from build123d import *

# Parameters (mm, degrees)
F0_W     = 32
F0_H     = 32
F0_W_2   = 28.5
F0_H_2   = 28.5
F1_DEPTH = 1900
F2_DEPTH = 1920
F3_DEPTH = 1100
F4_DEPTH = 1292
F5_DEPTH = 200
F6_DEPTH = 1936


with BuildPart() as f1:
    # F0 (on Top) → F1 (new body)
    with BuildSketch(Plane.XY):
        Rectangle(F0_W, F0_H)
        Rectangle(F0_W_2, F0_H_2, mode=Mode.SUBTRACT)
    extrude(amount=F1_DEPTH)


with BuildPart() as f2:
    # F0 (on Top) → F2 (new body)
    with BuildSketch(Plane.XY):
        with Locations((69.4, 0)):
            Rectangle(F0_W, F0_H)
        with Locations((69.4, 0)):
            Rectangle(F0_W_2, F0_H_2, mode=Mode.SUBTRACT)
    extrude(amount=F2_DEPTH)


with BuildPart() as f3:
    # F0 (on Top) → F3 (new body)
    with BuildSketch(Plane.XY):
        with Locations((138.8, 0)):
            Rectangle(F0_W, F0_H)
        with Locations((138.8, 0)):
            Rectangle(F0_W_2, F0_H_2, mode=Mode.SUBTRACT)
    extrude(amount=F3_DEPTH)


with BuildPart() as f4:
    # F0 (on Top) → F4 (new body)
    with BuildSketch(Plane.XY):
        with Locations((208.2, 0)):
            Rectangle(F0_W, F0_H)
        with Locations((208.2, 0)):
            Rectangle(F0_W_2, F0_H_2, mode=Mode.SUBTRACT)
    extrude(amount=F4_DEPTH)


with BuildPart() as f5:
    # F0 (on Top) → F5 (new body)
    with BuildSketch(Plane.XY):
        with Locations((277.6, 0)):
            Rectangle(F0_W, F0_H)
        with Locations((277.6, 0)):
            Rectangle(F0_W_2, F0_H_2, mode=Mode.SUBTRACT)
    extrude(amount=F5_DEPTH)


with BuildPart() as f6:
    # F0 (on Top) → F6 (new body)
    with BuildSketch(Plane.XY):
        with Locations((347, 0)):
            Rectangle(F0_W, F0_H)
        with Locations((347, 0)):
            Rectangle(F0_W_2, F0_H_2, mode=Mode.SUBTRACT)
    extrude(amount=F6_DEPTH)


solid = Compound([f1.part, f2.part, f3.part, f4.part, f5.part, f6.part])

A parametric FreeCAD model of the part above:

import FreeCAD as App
import Part
import Sketcher

V = App.Vector

doc = App.newDocument("Part")
body = doc.addObject("PartDesign::Body", "Body")

# Sketch on XY plane
sketch1 = doc.addObject("Sketcher::SketchObject", "Sketch")
body.addObject(sketch1)
sketch1.AttachmentSupport = (doc.XY_Plane, [""])
sketch1.MapMode = "FlatFace"
sketch1.addGeometry(Part.LineSegment(V(-16, 16, 0), V(-16, -16, 0)), False)
sketch1.addGeometry(Part.LineSegment(V(-16, -16, 0), V(16, -16, 0)), False)
sketch1.addGeometry(Part.LineSegment(V(16, -16, 0), V(16, 16, 0)), False)
sketch1.addGeometry(Part.LineSegment(V(16, 16, 0), V(-16, 16, 0)), False)
sketch1.addGeometry(Part.LineSegment(V(14, -14, 0), V(-14, -14, 0)), False)
sketch1.addGeometry(Part.LineSegment(V(-14, -14, 0), V(-14, 14, 0)), False)
sketch1.addGeometry(Part.LineSegment(V(-14, 14, 0), V(14, 14, 0)), False)
sketch1.addGeometry(Part.LineSegment(V(14, 14, 0), V(14, -14, 0)), False)
sketch1.addConstraint(Sketcher.Constraint("Coincident", 0, 2, 1, 1))
sketch1.addConstraint(Sketcher.Constraint("Coincident", 1, 2, 2, 1))
sketch1.addConstraint(Sketcher.Constraint("Coincident", 2, 2, 3, 1))
sketch1.addConstraint(Sketcher.Constraint("Coincident", 3, 2, 0, 1))
sketch1.addConstraint(Sketcher.Constraint("Coincident", 4, 2, 5, 1))
sketch1.addConstraint(Sketcher.Constraint("Coincident", 5, 2, 6, 1))
sketch1.addConstraint(Sketcher.Constraint("Coincident", 6, 2, 7, 1))
sketch1.addConstraint(Sketcher.Constraint("Coincident", 7, 2, 4, 1))
sketch1.addConstraint(Sketcher.Constraint("Vertical", 0))
sketch1.addConstraint(Sketcher.Constraint("Horizontal", 1))
sketch1.addConstraint(Sketcher.Constraint("Vertical", 2))
sketch1.addConstraint(Sketcher.Constraint("Horizontal", 3))
sketch1.addConstraint(Sketcher.Constraint("Horizontal", 4))
sketch1.addConstraint(Sketcher.Constraint("Vertical", 5))
sketch1.addConstraint(Sketcher.Constraint("Horizontal", 6))
sketch1.addConstraint(Sketcher.Constraint("Vertical", 7))
sketch1.addConstraint(Sketcher.Constraint("Symmetric", 0, 2, 2, 2, -1, 1))
sketch1.addConstraint(Sketcher.Constraint("Symmetric", 4, 2, 6, 2, -1, 1))
sketch1.addConstraint(Sketcher.Constraint("Equal", 3, 0))
sketch1.addConstraint(Sketcher.Constraint("Equal", 6, 5))
sketch1.addConstraint(Sketcher.Constraint("DistanceX", 1, 1, 1, 2, 32.0))
sketch1.addConstraint(Sketcher.Constraint("DistanceX", 4, 2, 4, 1, 28.5))
pad1 = doc.addObject("PartDesign::Pad", "Pad")
body.addObject(pad1)
pad1.Profile = sketch1
pad1.Length = 1900
body2 = doc.addObject("PartDesign::Body", "Body001")

# Sketch on XY plane
sketch2 = doc.addObject("Sketcher::SketchObject", "Sketch001")
body2.addObject(sketch2)
sketch2.AttachmentSupport = (doc.getObject("XY_Plane001"), [""])
sketch2.MapMode = "FlatFace"
sketch2.addGeometry(Part.LineSegment(V(53, 16, 0), V(53, -16, 0)), False)
sketch2.addGeometry(Part.LineSegment(V(53, -16, 0), V(85, -16, 0)), False)
sketch2.addGeometry(Part.LineSegment(V(85, -16, 0), V(85, 16, 0)), False)
sketch2.addGeometry(Part.LineSegment(V(85, 16, 0), V(53, 16, 0)), False)
sketch2.addGeometry(Part.LineSegment(V(84, -14, 0), V(55, -14, 0)), False)
sketch2.addGeometry(Part.LineSegment(V(55, -14, 0), V(55, 14, 0)), False)
sketch2.addGeometry(Part.LineSegment(V(55, 14, 0), V(84, 14, 0)), False)
sketch2.addGeometry(Part.LineSegment(V(84, 14, 0), V(84, -14, 0)), False)
sketch2.addConstraint(Sketcher.Constraint("Coincident", 0, 2, 1, 1))
sketch2.addConstraint(Sketcher.Constraint("Coincident", 1, 2, 2, 1))
sketch2.addConstraint(Sketcher.Constraint("Coincident", 2, 2, 3, 1))
sketch2.addConstraint(Sketcher.Constraint("Coincident", 3, 2, 0, 1))
sketch2.addConstraint(Sketcher.Constraint("Coincident", 4, 2, 5, 1))
sketch2.addConstraint(Sketcher.Constraint("Coincident", 5, 2, 6, 1))
sketch2.addConstraint(Sketcher.Constraint("Coincident", 6, 2, 7, 1))
sketch2.addConstraint(Sketcher.Constraint("Coincident", 7, 2, 4, 1))
sketch2.addConstraint(Sketcher.Constraint("Vertical", 0))
sketch2.addConstraint(Sketcher.Constraint("Horizontal", 1))
sketch2.addConstraint(Sketcher.Constraint("Vertical", 2))
sketch2.addConstraint(Sketcher.Constraint("Horizontal", 3))
sketch2.addConstraint(Sketcher.Constraint("Horizontal", 4))
sketch2.addConstraint(Sketcher.Constraint("Vertical", 5))
sketch2.addConstraint(Sketcher.Constraint("Horizontal", 6))
sketch2.addConstraint(Sketcher.Constraint("Vertical", 7))
sketch2.addConstraint(Sketcher.Constraint("Equal", 3, 0))
sketch2.addConstraint(Sketcher.Constraint("Equal", 6, 5))
sketch2.addConstraint(Sketcher.Constraint("DistanceX", 1, 1, 1, 2, 32.0))
sketch2.addConstraint(Sketcher.Constraint("DistanceX", 4, 2, 4, 1, 28.5))
sketch2.addConstraint(Sketcher.Constraint("DistanceY", 0, 2, -1, 1, 16.0))
sketch2.addConstraint(Sketcher.Constraint("DistanceX", -1, 1, 0, 2, 53.4))
sketch2.addConstraint(Sketcher.Constraint("DistanceX", -1, 1, 4, 2, 55.15))
sketch2.addConstraint(Sketcher.Constraint("DistanceY", 4, 2, -1, 1, 14.25))
pad2 = doc.addObject("PartDesign::Pad", "Pad001")
body2.addObject(pad2)
pad2.Profile = sketch2
pad2.Length = 1920
body3 = doc.addObject("PartDesign::Body", "Body002")

# Sketch on XY plane
sketch3 = doc.addObject("Sketcher::SketchObject", "Sketch002")
body3.addObject(sketch3)
sketch3.AttachmentSupport = (doc.getObject("XY_Plane002"), [""])
sketch3.MapMode = "FlatFace"
sketch3.addGeometry(Part.LineSegment(V(123, 16, 0), V(123, -16, 0)), False)
sketch3.addGeometry(Part.LineSegment(V(123, -16, 0), V(155, -16, 0)), False)
sketch3.addGeometry(Part.LineSegment(V(155, -16, 0), V(155, 16, 0)), False)
sketch3.addGeometry(Part.LineSegment(V(155, 16, 0), V(123, 16, 0)), False)
sketch3.addGeometry(Part.LineSegment(V(153, -14, 0), V(125, -14, 0)), False)
sketch3.addGeometry(Part.LineSegment(V(125, -14, 0), V(125, 14, 0)), False)
sketch3.addGeometry(Part.LineSegment(V(125, 14, 0), V(153, 14, 0)), False)
sketch3.addGeometry(Part.LineSegment(V(153, 14, 0), V(153, -14, 0)), False)
sketch3.addConstraint(Sketcher.Constraint("Coincident", 0, 2, 1, 1))
sketch3.addConstraint(Sketcher.Constraint("Coincident", 1, 2, 2, 1))
sketch3.addConstraint(Sketcher.Constraint("Coincident", 2, 2, 3, 1))
sketch3.addConstraint(Sketcher.Constraint("Coincident", 3, 2, 0, 1))
sketch3.addConstraint(Sketcher.Constraint("Coincident", 4, 2, 5, 1))
sketch3.addConstraint(Sketcher.Constraint("Coincident", 5, 2, 6, 1))
sketch3.addConstraint(Sketcher.Constraint("Coincident", 6, 2, 7, 1))
sketch3.addConstraint(Sketcher.Constraint("Coincident", 7, 2, 4, 1))
sketch3.addConstraint(Sketcher.Constraint("Vertical", 0))
sketch3.addConstraint(Sketcher.Constraint("Horizontal", 1))
sketch3.addConstraint(Sketcher.Constraint("Vertical", 2))
sketch3.addConstraint(Sketcher.Constraint("Horizontal", 3))
sketch3.addConstraint(Sketcher.Constraint("Horizontal", 4))
sketch3.addConstraint(Sketcher.Constraint("Vertical", 5))
sketch3.addConstraint(Sketcher.Constraint("Horizontal", 6))
sketch3.addConstraint(Sketcher.Constraint("Vertical", 7))
sketch3.addConstraint(Sketcher.Constraint("Equal", 3, 0))
sketch3.addConstraint(Sketcher.Constraint("Equal", 6, 5))
sketch3.addConstraint(Sketcher.Constraint("DistanceX", 1, 1, 1, 2, 32.0))
sketch3.addConstraint(Sketcher.Constraint("DistanceX", 4, 2, 4, 1, 28.5))
sketch3.addConstraint(Sketcher.Constraint("DistanceY", 0, 2, -1, 1, 16.0))
sketch3.addConstraint(Sketcher.Constraint("DistanceX", -1, 1, 0, 2, 122.8))
sketch3.addConstraint(Sketcher.Constraint("DistanceX", -1, 1, 4, 2, 124.55))
sketch3.addConstraint(Sketcher.Constraint("DistanceY", 4, 2, -1, 1, 14.25))
pad3 = doc.addObject("PartDesign::Pad", "Pad002")
body3.addObject(pad3)
pad3.Profile = sketch3
pad3.Length = 1100
body4 = doc.addObject("PartDesign::Body", "Body003")

# Sketch on XY plane
sketch4 = doc.addObject("Sketcher::SketchObject", "Sketch003")
body4.addObject(sketch4)
sketch4.AttachmentSupport = (doc.getObject("XY_Plane003"), [""])
sketch4.MapMode = "FlatFace"
sketch4.addGeometry(Part.LineSegment(V(192, 16, 0), V(192, -16, 0)), False)
sketch4.addGeometry(Part.LineSegment(V(192, -16, 0), V(224, -16, 0)), False)
sketch4.addGeometry(Part.LineSegment(V(224, -16, 0), V(224, 16, 0)), False)
sketch4.addGeometry(Part.LineSegment(V(224, 16, 0), V(192, 16, 0)), False)
sketch4.addGeometry(Part.LineSegment(V(222, -14, 0), V(194, -14, 0)), False)
sketch4.addGeometry(Part.LineSegment(V(194, -14, 0), V(194, 14, 0)), False)
sketch4.addGeometry(Part.LineSegment(V(194, 14, 0), V(222, 14, 0)), False)
sketch4.addGeometry(Part.LineSegment(V(222, 14, 0), V(222, -14, 0)), False)
sketch4.addConstraint(Sketcher.Constraint("Coincident", 0, 2, 1, 1))
sketch4.addConstraint(Sketcher.Constraint("Coincident", 1, 2, 2, 1))
sketch4.addConstraint(Sketcher.Constraint("Coincident", 2, 2, 3, 1))
sketch4.addConstraint(Sketcher.Constraint("Coincident", 3, 2, 0, 1))
sketch4.addConstraint(Sketcher.Constraint("Coincident", 4, 2, 5, 1))
sketch4.addConstraint(Sketcher.Constraint("Coincident", 5, 2, 6, 1))
sketch4.addConstraint(Sketcher.Constraint("Coincident", 6, 2, 7, 1))
sketch4.addConstraint(Sketcher.Constraint("Coincident", 7, 2, 4, 1))
sketch4.addConstraint(Sketcher.Constraint("Vertical", 0))
sketch4.addConstraint(Sketcher.Constraint("Horizontal", 1))
sketch4.addConstraint(Sketcher.Constraint("Vertical", 2))
sketch4.addConstraint(Sketcher.Constraint("Horizontal", 3))
sketch4.addConstraint(Sketcher.Constraint("Horizontal", 4))
sketch4.addConstraint(Sketcher.Constraint("Vertical", 5))
sketch4.addConstraint(Sketcher.Constraint("Horizontal", 6))
sketch4.addConstraint(Sketcher.Constraint("Vertical", 7))
sketch4.addConstraint(Sketcher.Constraint("Equal", 3, 0))
sketch4.addConstraint(Sketcher.Constraint("Equal", 6, 5))
sketch4.addConstraint(Sketcher.Constraint("DistanceX", 1, 1, 1, 2, 32.0))
sketch4.addConstraint(Sketcher.Constraint("DistanceX", 4, 2, 4, 1, 28.5))
sketch4.addConstraint(Sketcher.Constraint("DistanceY", 0, 2, -1, 1, 16.0))
sketch4.addConstraint(Sketcher.Constraint("DistanceX", -1, 1, 0, 2, 192.2))
sketch4.addConstraint(Sketcher.Constraint("DistanceX", -1, 1, 4, 2, 193.95))
sketch4.addConstraint(Sketcher.Constraint("DistanceY", 4, 2, -1, 1, 14.25))
pad4 = doc.addObject("PartDesign::Pad", "Pad003")
body4.addObject(pad4)
pad4.Profile = sketch4
pad4.Length = 1292
body5 = doc.addObject("PartDesign::Body", "Body004")

# Sketch on XY plane
sketch5 = doc.addObject("Sketcher::SketchObject", "Sketch004")
body5.addObject(sketch5)
sketch5.AttachmentSupport = (doc.getObject("XY_Plane004"), [""])
sketch5.MapMode = "FlatFace"
sketch5.addGeometry(Part.LineSegment(V(262, 16, 0), V(262, -16, 0)), False)
sketch5.addGeometry(Part.LineSegment(V(262, -16, 0), V(294, -16, 0)), False)
sketch5.addGeometry(Part.LineSegment(V(294, -16, 0), V(294, 16, 0)), False)
sketch5.addGeometry(Part.LineSegment(V(294, 16, 0), V(262, 16, 0)), False)
sketch5.addGeometry(Part.LineSegment(V(292, -14, 0), V(263, -14, 0)), False)
sketch5.addGeometry(Part.LineSegment(V(263, -14, 0), V(263, 14, 0)), False)
sketch5.addGeometry(Part.LineSegment(V(263, 14, 0), V(292, 14, 0)), False)
sketch5.addGeometry(Part.LineSegment(V(292, 14, 0), V(292, -14, 0)), False)
sketch5.addConstraint(Sketcher.Constraint("Coincident", 0, 2, 1, 1))
sketch5.addConstraint(Sketcher.Constraint("Coincident", 1, 2, 2, 1))
sketch5.addConstraint(Sketcher.Constraint("Coincident", 2, 2, 3, 1))
sketch5.addConstraint(Sketcher.Constraint("Coincident", 3, 2, 0, 1))
sketch5.addConstraint(Sketcher.Constraint("Coincident", 4, 2, 5, 1))
sketch5.addConstraint(Sketcher.Constraint("Coincident", 5, 2, 6, 1))
sketch5.addConstraint(Sketcher.Constraint("Coincident", 6, 2, 7, 1))
sketch5.addConstraint(Sketcher.Constraint("Coincident", 7, 2, 4, 1))
sketch5.addConstraint(Sketcher.Constraint("Vertical", 0))
sketch5.addConstraint(Sketcher.Constraint("Horizontal", 1))
sketch5.addConstraint(Sketcher.Constraint("Vertical", 2))
sketch5.addConstraint(Sketcher.Constraint("Horizontal", 3))
sketch5.addConstraint(Sketcher.Constraint("Horizontal", 4))
sketch5.addConstraint(Sketcher.Constraint("Vertical", 5))
sketch5.addConstraint(Sketcher.Constraint("Horizontal", 6))
sketch5.addConstraint(Sketcher.Constraint("Vertical", 7))
sketch5.addConstraint(Sketcher.Constraint("Equal", 3, 0))
sketch5.addConstraint(Sketcher.Constraint("Equal", 6, 5))
sketch5.addConstraint(Sketcher.Constraint("DistanceX", 1, 1, 1, 2, 32.0))
sketch5.addConstraint(Sketcher.Constraint("DistanceX", 4, 2, 4, 1, 28.5))
sketch5.addConstraint(Sketcher.Constraint("DistanceY", 0, 2, -1, 1, 16.0))
sketch5.addConstraint(Sketcher.Constraint("DistanceX", -1, 1, 0, 2, 261.6))
sketch5.addConstraint(Sketcher.Constraint("DistanceX", -1, 1, 4, 2, 263.35))
sketch5.addConstraint(Sketcher.Constraint("DistanceY", 4, 2, -1, 1, 14.25))
pad5 = doc.addObject("PartDesign::Pad", "Pad004")
body5.addObject(pad5)
pad5.Profile = sketch5
pad5.Length = 200
body6 = doc.addObject("PartDesign::Body", "Body005")

# Sketch on XY plane
sketch6 = doc.addObject("Sketcher::SketchObject", "Sketch005")
body6.addObject(sketch6)
sketch6.AttachmentSupport = (doc.getObject("XY_Plane005"), [""])
sketch6.MapMode = "FlatFace"
sketch6.addGeometry(Part.LineSegment(V(331, 16, 0), V(331, -16, 0)), False)
sketch6.addGeometry(Part.LineSegment(V(331, -16, 0), V(363, -16, 0)), False)
sketch6.addGeometry(Part.LineSegment(V(363, -16, 0), V(363, 16, 0)), False)
sketch6.addGeometry(Part.LineSegment(V(363, 16, 0), V(331, 16, 0)), False)
sketch6.addGeometry(Part.LineSegment(V(361, -14, 0), V(333, -14, 0)), False)
sketch6.addGeometry(Part.LineSegment(V(333, -14, 0), V(333, 14, 0)), False)
sketch6.addGeometry(Part.LineSegment(V(333, 14, 0), V(361, 14, 0)), False)
sketch6.addGeometry(Part.LineSegment(V(361, 14, 0), V(361, -14, 0)), False)
sketch6.addConstraint(Sketcher.Constraint("Coincident", 0, 2, 1, 1))
sketch6.addConstraint(Sketcher.Constraint("Coincident", 1, 2, 2, 1))
sketch6.addConstraint(Sketcher.Constraint("Coincident", 2, 2, 3, 1))
sketch6.addConstraint(Sketcher.Constraint("Coincident", 3, 2, 0, 1))
sketch6.addConstraint(Sketcher.Constraint("Coincident", 4, 2, 5, 1))
sketch6.addConstraint(Sketcher.Constraint("Coincident", 5, 2, 6, 1))
sketch6.addConstraint(Sketcher.Constraint("Coincident", 6, 2, 7, 1))
sketch6.addConstraint(Sketcher.Constraint("Coincident", 7, 2, 4, 1))
sketch6.addConstraint(Sketcher.Constraint("Vertical", 0))
sketch6.addConstraint(Sketcher.Constraint("Horizontal", 1))
sketch6.addConstraint(Sketcher.Constraint("Vertical", 2))
sketch6.addConstraint(Sketcher.Constraint("Horizontal", 3))
sketch6.addConstraint(Sketcher.Constraint("Horizontal", 4))
sketch6.addConstraint(Sketcher.Constraint("Vertical", 5))
sketch6.addConstraint(Sketcher.Constraint("Horizontal", 6))
sketch6.addConstraint(Sketcher.Constraint("Vertical", 7))
sketch6.addConstraint(Sketcher.Constraint("Equal", 3, 0))
sketch6.addConstraint(Sketcher.Constraint("Equal", 6, 5))
sketch6.addConstraint(Sketcher.Constraint("DistanceX", 1, 1, 1, 2, 32.0))
sketch6.addConstraint(Sketcher.Constraint("DistanceX", 4, 2, 4, 1, 28.5))
sketch6.addConstraint(Sketcher.Constraint("DistanceX", -1, 1, 0, 2, 331.0))
sketch6.addConstraint(Sketcher.Constraint("DistanceY", 0, 2, -1, 1, 16.0))
sketch6.addConstraint(Sketcher.Constraint("DistanceX", -1, 1, 4, 2, 332.75))
sketch6.addConstraint(Sketcher.Constraint("DistanceY", 4, 2, -1, 1, 14.25))
pad6 = doc.addObject("PartDesign::Pad", "Pad005")
body6.addObject(pad6)
pad6.Profile = sketch6
pad6.Length = 1936

doc.recompute()
